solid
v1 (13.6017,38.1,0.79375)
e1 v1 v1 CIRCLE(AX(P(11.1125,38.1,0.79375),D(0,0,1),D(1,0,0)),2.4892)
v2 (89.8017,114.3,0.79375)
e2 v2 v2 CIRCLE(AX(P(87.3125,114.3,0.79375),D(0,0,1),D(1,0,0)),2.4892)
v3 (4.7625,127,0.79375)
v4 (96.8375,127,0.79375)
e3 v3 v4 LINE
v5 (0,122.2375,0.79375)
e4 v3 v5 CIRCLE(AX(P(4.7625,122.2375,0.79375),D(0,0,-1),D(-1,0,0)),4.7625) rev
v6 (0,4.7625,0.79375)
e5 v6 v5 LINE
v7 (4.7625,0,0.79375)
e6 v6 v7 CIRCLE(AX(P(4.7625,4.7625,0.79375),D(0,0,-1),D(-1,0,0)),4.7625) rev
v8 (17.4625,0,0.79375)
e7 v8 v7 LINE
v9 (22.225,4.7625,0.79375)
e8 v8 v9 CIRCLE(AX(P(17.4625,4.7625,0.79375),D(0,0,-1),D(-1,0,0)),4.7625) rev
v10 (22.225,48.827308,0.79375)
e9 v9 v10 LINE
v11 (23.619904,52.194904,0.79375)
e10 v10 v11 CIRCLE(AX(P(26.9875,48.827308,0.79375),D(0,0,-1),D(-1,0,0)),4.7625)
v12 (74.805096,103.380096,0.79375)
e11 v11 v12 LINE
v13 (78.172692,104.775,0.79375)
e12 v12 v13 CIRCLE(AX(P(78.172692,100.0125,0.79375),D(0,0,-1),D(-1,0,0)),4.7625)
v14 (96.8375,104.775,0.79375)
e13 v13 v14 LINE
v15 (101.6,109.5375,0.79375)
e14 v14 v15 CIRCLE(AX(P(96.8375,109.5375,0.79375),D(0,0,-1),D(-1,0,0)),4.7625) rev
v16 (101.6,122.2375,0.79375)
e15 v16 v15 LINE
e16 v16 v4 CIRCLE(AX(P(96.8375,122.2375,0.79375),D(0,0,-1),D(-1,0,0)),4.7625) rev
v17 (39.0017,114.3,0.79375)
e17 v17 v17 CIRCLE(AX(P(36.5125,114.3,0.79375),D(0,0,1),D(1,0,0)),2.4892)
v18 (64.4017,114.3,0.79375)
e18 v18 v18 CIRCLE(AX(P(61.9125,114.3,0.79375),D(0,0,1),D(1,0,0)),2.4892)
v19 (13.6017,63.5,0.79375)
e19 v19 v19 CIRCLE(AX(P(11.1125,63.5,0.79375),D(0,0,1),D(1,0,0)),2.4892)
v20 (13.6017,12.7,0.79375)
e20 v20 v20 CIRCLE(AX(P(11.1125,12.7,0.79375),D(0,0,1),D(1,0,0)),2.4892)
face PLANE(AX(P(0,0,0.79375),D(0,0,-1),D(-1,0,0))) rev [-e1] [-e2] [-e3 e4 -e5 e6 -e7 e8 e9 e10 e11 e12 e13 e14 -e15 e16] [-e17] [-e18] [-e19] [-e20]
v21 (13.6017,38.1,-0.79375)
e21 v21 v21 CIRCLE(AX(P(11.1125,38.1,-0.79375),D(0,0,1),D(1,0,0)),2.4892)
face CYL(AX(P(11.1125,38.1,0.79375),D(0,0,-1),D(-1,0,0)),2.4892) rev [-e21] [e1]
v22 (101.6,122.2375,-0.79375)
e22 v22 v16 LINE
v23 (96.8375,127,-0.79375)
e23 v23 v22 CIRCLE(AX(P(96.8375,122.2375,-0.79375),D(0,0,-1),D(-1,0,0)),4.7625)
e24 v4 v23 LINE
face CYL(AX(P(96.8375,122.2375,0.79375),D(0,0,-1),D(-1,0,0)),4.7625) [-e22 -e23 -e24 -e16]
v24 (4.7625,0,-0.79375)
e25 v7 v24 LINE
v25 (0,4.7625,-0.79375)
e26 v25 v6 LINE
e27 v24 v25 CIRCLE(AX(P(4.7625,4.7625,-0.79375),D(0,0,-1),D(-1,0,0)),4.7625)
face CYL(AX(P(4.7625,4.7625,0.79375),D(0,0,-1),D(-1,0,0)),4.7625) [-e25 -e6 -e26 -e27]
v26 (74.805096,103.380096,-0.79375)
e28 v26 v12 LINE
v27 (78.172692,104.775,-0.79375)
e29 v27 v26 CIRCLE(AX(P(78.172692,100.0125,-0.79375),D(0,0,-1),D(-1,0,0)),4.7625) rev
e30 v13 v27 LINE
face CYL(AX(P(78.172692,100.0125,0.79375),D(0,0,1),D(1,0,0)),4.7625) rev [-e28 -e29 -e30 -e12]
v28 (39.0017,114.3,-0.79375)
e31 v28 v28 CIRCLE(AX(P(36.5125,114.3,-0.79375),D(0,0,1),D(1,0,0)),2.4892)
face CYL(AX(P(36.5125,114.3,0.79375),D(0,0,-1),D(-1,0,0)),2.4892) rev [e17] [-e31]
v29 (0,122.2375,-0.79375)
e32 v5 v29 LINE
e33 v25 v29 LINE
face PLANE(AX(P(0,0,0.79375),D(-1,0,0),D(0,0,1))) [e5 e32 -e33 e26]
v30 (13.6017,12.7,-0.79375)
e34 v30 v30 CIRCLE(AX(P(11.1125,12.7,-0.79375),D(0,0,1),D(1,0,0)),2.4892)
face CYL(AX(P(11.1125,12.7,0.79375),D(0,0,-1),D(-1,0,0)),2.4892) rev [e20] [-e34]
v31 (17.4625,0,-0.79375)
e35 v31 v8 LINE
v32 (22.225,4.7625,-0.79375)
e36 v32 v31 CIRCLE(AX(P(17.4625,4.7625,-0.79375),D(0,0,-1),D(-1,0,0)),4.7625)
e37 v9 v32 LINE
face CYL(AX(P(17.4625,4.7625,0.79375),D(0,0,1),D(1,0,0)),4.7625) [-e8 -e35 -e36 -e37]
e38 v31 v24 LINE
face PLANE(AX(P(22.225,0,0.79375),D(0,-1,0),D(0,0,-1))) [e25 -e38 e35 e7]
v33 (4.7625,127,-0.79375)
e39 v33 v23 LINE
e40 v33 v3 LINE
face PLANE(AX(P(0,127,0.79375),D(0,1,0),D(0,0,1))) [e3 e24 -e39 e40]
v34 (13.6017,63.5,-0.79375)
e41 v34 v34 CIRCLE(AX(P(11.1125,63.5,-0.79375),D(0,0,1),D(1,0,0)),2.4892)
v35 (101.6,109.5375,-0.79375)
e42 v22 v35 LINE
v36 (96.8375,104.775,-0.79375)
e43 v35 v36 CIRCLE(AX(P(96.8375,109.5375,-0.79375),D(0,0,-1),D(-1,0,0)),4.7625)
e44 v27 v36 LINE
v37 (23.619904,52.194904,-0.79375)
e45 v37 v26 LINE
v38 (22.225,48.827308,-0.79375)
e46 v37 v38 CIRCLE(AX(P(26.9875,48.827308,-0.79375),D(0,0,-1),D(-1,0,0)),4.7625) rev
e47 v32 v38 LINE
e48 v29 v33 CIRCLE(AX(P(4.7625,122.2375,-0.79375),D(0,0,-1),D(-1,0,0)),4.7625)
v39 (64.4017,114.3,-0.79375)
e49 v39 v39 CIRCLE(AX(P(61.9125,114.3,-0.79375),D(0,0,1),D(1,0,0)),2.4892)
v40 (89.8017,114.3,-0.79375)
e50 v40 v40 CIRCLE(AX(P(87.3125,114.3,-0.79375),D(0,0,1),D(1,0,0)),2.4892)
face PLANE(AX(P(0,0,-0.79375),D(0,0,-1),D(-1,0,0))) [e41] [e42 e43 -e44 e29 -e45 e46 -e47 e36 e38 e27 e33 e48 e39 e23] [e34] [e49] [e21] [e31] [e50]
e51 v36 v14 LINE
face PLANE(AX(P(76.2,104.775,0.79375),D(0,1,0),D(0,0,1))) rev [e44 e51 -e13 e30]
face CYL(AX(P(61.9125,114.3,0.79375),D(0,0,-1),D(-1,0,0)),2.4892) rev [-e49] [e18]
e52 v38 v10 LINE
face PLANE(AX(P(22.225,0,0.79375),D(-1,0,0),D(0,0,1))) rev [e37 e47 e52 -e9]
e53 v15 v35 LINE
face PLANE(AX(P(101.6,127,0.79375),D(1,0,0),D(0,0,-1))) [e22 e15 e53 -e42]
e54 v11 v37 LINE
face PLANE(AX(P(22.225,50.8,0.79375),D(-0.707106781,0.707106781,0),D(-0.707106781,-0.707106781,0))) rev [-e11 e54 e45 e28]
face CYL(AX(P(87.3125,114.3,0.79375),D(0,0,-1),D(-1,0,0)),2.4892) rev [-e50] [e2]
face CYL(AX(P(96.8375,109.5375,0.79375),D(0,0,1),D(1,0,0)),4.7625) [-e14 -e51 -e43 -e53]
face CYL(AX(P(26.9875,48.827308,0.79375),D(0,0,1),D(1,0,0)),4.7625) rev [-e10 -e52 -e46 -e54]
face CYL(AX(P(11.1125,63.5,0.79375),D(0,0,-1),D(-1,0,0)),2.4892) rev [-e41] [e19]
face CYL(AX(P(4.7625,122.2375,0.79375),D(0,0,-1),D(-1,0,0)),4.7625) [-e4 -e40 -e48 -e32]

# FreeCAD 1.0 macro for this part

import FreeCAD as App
import Part
import Sketcher
from FreeCAD import Vector
Q = App.Units.Quantity


def edges_at(feature, points):
    """Names of the edges that pass closest to the given points."""
    edges = feature.Shape.Edges
    near = lambda p: min(range(len(edges)), key=lambda i: edges[i].distToShape(Part.Vertex(*p))[0])
    return sorted({f"Edge{near(p) + 1}" for p in points})

doc = App.newDocument("Part")
body = doc.addObject("PartDesign::Body", "Body")

# Sketch on XY plane
sketch1 = doc.addObject("Sketcher::SketchObject", "Sketch")
body.addObject(sketch1)
sketch1.AttachmentSupport = (doc.XY_Plane, [""])
sketch1.MapMode = "FlatFace"
sketch1.addGeometry(Part.LineSegment(Vector(0, 127, 0), Vector(0, 0, 0)), False)
sketch1.addGeometry(Part.LineSegment(Vector(0, 0, 0), Vector(22.2, 0, 0)), False)
sketch1.addGeometry(Part.LineSegment(Vector(22.2, 0, 0), Vector(22.2, 50.8, 0)), False)
sketch1.addGeometry(Part.LineSegment(Vector(22.2, 50.8, 0), Vector(76.2, 104.8, 0)), False)
sketch1.addGeometry(Part.LineSegment(Vector(76.2, 104.8, 0), Vector(101.6, 104.8, 0)), False)
sketch1.addGeometry(Part.LineSegment(Vector(101.6, 104.8, 0), Vector(101.6, 127, 0)), False)
sketch1.addGeometry(Part.LineSegment(Vector(101.6, 127, 0), Vector(0, 127, 0)), False)
sketch1.addGeometry(Part.Circle(Vector(11.1, 12.7, 0), Vector(0, 0, 1), 2.5), False)
sketch1.addGeometry(Part.Circle(Vector(11.1, 38.1, 0), Vector(0, 0, 1), 2.5), False)
sketch1.addGeometry(Part.Circle(Vector(87.3, 114.3, 0), Vector(0, 0, 1), 2.5), False)
sketch1.addGeometry(Part.Circle(Vector(61.9, 114.3, 0), Vector(0, 0, 1), 2.5), False)
sketch1.addGeometry(Part.Circle(Vector(11.1, 63.5, 0), Vector(0, 0, 1), 2.5), False)
sketch1.addGeometry(Part.Circle(Vector(36.5, 114.3, 0), Vector(0, 0, 1), 2.5), False)
sketch1.addConstraint(Sketcher.Constraint("Coincident", 0, 2, 1, 1))
sketch1.addConstraint(Sketcher.Constraint("Coincident", 1, 2, 2, 1))
sketch1.addConstraint(Sketcher.Constraint("Coincident", 2, 2, 3, 1))
sketch1.addConstraint(Sketcher.Constraint("Coincident", 3, 2, 4, 1))
sketch1.addConstraint(Sketcher.Constraint("Coincident", 4, 2, 5, 1))
sketch1.addConstraint(Sketcher.Constraint("Coincident", 5, 2, 6, 1))
sketch1.addConstraint(Sketcher.Constraint("Coincident", 6, 2, 0, 1))
sketch1.addConstraint(Sketcher.Constraint("Vertical", 0))
sketch1.addConstraint(Sketcher.Constraint("Horizontal", 1))
sketch1.addConstraint(Sketcher.Constraint("Vertical", 2))
sketch1.addConstraint(Sketcher.Constraint("Horizontal", 4))
sketch1.addConstraint(Sketcher.Constraint("Vertical", 5))
sketch1.addConstraint(Sketcher.Constraint("Horizontal", 6))
sketch1.addConstraint(Sketcher.Constraint("Coincident", 0, 2, -1, 1))
sketch1.addConstraint(Sketcher.Constraint("Equal", 7, 8))
sketch1.addConstraint(Sketcher.Constraint("Equal", 8, 9))
sketch1.addConstraint(Sketcher.Constraint("Equal", 9, 10))
sketch1.addConstraint(Sketcher.Constraint("Equal", 10, 11))
sketch1.addConstraint(Sketcher.Constraint("Equal", 11, 12))
sketch1.addConstraint(Sketcher.Constraint("Horizontal", 9, 3, 10, 3))
sketch1.addConstraint(Sketcher.Constraint("Horizontal", 10, 3, 12, 3))
sketch1.addConstraint(Sketcher.Constraint("Vertical", 7, 3, 8, 3))
sketch1.addConstraint(Sketcher.Constraint("Vertical", 8, 3, 11, 3))
sketch1.addConstraint(Sketcher.Constraint("Equal", 1, 5))
sketch1.addConstraint(Sketcher.Constraint("DistanceX", 4, 1, 4, 2, Q("1 in")))
sketch1.addConstraint(Sketcher.Constraint("DistanceX", 6, 2, 6, 1, Q("4 in")))
sketch1.addConstraint(Sketcher.Constraint("DistanceY", 0, 2, 0, 1, Q("5 in")))
sketch1.addConstraint(Sketcher.Constraint("DistanceY", 2, 1, 2, 2, Q("2 in")))
sketch1.addConstraint(Sketcher.Constraint("Diameter", 7, Q("0.196 in")))
sketch1.addConstraint(Sketcher.Constraint("DistanceY", 7, 3, 8, 3, Q("1 in")))
sketch1.addConstraint(Sketcher.Constraint("DistanceX", 8, 3, 9, 3, Q("3 in")))
sketch1.addConstraint(Sketcher.Constraint("DistanceY", 8, 3, 9, 3, Q("3 in")))
sketch1.addConstraint(Sketcher.Constraint("DistanceX", 10, 3, 9, 3, Q("1 in")))
sketch1.addConstraint(Sketcher.Constraint("DistanceY", 8, 3, 11, 3, Q("1 in")))
sketch1.addConstraint(Sketcher.Constraint("DistanceX", 12, 3, 10, 3, Q("1 in")))
sketch1.addConstraint(Sketcher.Constraint("DistanceY", -1, 1, 7, 3, Q("0.5 in")))
sketch1.addConstraint(Sketcher.Constraint("DistanceX", 1, 1, 1, 2, Q("0.875 in")))
sketch1.addConstraint(Sketcher.Constraint("DistanceX", -1, 1, 7, 3, Q("0.4375 in")))
pad1 = doc.addObject("PartDesign::Pad", "Pad")
body.addObject(pad1)
pad1.Profile = sketch1
pad1.Length = Q("0.0625 in")
pad1.Midplane = True
doc.recompute()

fillet = doc.addObject("PartDesign::Fillet", "Fillet")
body.addObject(fillet)
fillet.Base = (pad1, edges_at(pad1, [
    (22.225, 0, 0),
    (22.225, 50.8, 0),
    (76.2, 104.775, 0),
    (101.6, 104.775, 0),
    (101.6, 127, 0),
    (0, 127, 0),
    (0, 0, 0),
]))
fillet.Radius = Q("0.1875 in")

doc.recompute()
